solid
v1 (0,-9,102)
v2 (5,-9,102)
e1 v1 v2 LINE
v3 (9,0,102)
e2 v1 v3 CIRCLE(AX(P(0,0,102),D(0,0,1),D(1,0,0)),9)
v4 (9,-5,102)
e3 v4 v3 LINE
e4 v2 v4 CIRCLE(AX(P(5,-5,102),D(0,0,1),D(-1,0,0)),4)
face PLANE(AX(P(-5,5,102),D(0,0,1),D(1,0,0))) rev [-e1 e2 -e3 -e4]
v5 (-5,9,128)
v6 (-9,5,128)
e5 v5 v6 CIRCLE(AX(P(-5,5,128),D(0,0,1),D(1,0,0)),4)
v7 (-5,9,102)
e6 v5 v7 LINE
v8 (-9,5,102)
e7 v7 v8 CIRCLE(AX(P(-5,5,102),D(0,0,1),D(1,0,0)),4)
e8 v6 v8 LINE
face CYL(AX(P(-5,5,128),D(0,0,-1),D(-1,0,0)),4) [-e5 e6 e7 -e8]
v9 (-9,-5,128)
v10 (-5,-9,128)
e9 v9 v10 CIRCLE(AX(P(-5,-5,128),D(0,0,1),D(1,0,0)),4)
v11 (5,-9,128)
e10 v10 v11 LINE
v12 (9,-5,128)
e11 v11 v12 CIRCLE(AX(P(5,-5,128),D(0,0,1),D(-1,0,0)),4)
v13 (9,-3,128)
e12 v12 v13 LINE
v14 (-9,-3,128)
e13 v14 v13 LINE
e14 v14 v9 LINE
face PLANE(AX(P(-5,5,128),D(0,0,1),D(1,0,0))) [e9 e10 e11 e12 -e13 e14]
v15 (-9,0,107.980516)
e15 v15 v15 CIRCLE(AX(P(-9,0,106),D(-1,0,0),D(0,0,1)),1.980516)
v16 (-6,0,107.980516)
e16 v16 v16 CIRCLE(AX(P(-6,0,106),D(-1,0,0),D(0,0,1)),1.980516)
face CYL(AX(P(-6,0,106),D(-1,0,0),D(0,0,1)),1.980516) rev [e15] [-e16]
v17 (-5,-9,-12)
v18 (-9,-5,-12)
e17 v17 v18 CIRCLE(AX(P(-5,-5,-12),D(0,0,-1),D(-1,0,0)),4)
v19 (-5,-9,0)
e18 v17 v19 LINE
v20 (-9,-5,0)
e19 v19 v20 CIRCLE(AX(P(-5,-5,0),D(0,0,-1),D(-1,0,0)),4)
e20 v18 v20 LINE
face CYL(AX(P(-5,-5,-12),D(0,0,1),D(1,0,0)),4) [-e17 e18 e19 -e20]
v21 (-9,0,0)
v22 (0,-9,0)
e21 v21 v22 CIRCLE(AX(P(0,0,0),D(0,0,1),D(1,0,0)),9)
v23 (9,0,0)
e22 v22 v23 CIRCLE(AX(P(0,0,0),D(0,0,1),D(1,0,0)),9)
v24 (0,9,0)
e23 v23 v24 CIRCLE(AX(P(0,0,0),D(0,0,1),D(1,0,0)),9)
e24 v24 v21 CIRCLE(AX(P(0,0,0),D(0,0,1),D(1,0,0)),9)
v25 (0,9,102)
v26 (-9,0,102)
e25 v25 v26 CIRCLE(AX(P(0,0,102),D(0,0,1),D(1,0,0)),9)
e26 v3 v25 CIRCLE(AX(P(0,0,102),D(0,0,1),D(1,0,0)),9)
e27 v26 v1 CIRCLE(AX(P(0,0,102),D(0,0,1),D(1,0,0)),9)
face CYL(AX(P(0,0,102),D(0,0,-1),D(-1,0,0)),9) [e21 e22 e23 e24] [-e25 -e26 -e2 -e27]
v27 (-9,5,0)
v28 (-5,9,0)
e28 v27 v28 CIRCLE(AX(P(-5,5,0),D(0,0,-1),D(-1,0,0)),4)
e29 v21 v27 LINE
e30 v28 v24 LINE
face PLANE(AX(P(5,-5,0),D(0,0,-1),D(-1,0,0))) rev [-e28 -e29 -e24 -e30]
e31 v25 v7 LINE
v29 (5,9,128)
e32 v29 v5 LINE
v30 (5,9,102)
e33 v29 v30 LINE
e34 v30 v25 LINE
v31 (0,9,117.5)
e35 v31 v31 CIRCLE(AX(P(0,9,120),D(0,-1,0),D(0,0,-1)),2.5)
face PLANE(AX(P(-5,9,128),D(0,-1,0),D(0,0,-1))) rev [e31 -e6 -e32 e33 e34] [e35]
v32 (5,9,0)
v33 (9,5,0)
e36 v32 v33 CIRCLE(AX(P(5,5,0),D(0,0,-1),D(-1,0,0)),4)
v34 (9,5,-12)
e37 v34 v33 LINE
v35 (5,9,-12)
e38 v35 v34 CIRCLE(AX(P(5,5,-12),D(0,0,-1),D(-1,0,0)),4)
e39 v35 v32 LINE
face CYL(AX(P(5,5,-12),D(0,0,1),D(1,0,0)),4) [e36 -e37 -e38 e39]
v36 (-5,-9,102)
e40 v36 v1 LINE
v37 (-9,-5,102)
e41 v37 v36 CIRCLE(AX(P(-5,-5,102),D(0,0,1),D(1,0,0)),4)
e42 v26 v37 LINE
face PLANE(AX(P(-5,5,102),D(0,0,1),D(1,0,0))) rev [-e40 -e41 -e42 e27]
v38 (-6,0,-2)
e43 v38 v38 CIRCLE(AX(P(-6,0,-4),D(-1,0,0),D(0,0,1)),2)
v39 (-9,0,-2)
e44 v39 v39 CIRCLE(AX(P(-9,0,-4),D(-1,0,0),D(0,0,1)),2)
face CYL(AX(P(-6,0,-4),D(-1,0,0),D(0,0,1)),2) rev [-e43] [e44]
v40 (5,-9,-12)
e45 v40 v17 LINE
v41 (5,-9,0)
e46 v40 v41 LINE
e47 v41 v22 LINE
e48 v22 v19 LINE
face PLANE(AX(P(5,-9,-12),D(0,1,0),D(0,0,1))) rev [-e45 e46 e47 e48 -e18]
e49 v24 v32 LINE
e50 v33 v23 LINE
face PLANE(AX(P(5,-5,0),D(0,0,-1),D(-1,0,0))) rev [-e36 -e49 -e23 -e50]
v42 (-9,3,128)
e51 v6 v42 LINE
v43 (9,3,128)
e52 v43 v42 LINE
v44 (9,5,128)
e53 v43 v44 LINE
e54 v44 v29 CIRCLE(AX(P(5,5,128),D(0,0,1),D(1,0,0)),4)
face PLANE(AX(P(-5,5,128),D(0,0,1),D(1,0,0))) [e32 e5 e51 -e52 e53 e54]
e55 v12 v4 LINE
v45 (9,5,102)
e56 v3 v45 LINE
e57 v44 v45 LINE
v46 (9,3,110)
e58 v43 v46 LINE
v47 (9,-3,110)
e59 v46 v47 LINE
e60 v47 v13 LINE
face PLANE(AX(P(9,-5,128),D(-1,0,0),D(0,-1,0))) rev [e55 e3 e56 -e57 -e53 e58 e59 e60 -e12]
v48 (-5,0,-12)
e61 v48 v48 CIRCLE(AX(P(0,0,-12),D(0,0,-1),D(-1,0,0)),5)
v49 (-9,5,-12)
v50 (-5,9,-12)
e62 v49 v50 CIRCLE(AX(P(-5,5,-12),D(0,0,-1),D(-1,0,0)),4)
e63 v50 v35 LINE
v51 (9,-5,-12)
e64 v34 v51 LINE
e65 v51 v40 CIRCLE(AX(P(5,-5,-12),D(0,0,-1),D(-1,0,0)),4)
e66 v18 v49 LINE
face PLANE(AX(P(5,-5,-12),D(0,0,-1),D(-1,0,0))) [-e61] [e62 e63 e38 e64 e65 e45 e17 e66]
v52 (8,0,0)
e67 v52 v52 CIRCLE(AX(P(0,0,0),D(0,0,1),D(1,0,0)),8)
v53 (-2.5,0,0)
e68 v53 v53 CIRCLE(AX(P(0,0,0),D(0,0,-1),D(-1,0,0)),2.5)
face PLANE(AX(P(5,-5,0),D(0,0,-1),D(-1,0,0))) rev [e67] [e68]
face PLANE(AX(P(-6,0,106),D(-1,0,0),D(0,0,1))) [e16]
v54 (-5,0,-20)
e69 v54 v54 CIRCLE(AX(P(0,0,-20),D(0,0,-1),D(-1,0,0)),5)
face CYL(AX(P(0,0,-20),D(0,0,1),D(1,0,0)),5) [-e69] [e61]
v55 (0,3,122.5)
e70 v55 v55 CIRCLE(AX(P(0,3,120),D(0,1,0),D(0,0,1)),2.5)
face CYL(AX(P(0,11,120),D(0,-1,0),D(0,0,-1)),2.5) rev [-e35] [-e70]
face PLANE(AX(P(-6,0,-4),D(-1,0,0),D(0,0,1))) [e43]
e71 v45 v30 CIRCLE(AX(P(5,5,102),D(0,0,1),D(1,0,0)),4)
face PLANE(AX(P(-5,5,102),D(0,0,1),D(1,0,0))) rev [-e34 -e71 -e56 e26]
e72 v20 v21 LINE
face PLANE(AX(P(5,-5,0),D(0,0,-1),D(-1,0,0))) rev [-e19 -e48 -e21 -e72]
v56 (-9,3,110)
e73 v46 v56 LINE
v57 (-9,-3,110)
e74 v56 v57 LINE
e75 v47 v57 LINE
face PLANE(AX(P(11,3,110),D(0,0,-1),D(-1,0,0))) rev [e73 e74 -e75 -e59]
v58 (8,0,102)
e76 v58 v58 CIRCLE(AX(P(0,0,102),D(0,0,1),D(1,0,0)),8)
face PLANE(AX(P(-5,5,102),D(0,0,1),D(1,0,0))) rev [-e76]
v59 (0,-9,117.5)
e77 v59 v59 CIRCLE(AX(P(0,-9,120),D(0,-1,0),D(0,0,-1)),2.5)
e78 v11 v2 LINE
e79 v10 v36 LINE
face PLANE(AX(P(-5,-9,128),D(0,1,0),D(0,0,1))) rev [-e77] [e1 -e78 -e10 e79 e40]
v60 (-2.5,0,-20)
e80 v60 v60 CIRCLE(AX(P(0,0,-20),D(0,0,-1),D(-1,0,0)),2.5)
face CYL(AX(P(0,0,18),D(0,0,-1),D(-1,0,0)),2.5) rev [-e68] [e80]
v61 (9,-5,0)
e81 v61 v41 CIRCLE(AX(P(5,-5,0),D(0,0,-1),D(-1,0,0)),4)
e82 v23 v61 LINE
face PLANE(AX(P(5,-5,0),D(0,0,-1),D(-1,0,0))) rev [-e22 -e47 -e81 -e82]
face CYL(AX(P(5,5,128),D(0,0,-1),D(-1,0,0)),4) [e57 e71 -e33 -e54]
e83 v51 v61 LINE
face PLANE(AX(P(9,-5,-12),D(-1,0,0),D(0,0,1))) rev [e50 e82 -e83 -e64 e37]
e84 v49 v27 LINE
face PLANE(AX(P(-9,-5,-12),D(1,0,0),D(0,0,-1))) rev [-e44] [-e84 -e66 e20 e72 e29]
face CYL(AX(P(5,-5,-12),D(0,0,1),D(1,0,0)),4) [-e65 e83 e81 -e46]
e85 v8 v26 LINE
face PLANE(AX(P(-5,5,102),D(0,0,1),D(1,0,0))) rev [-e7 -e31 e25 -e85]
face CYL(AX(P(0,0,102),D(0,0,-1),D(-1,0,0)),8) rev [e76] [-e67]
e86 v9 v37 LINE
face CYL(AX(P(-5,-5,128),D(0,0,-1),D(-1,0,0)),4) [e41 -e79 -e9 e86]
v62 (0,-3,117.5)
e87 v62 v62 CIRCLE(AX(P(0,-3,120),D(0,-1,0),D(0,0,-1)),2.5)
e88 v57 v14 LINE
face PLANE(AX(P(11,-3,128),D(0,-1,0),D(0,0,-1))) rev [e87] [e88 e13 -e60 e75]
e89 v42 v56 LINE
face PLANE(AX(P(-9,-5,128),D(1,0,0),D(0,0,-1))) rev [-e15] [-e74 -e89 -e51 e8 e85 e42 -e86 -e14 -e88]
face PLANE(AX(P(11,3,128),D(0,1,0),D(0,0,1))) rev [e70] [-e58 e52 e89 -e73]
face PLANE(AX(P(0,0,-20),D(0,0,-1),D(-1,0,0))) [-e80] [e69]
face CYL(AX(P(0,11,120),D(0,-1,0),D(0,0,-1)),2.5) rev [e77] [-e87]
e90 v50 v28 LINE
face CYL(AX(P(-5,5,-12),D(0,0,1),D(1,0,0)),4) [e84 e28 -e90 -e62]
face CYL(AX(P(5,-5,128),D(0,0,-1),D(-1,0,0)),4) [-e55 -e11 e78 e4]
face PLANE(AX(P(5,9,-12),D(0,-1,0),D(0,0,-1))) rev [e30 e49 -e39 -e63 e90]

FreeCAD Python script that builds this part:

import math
import FreeCAD as App
import Part
import Sketcher
from FreeCAD import Vector


def add_polygon(sketch, points):
    """Adds a closed chain of lines whose ends are joined by coincident constraints."""
    first, n = sketch.GeometryCount, len(points)
    for a, b in zip(points, points[1:] + points[:1]):
        sketch.addGeometry(Part.LineSegment(App.Vector(*a, 0), App.Vector(*b, 0)), False)
    for i in range(n):
        sketch.addConstraint(Sketcher.Constraint("Coincident", first + i, 2, first + (i + 1) % n, 1))

doc = App.newDocument("Part")
body = doc.addObject("PartDesign::Body", "Body")

sketch1 = doc.addObject("Sketcher::SketchObject", "Sketch")
body.addObject(sketch1)
sketch1.AttachmentSupport = (doc.XY_Plane, [""])
sketch1.MapMode = "FlatFace"
sketch1.addGeometry([
    Part.Circle(Vector(0, 0, 0), Vector(0, 0, 1), 9),
    Part.Circle(Vector(0, 0, 0), Vector(0, 0, 1), 8),
], False)
sketch1.addConstraint([
    Sketcher.Constraint("Coincident", 0, 3, -1, 1),
    Sketcher.Constraint("Coincident", 1, 3, -1, 1),
    Sketcher.Constraint("Diameter", 0, 18.0),
    Sketcher.Constraint("Diameter", 1, 16.0),
])
pad1 = doc.addObject("PartDesign::Pad", "Pad")
body.addObject(pad1)
pad1.Profile = sketch1
pad1.Length = 102

sketch2 = doc.addObject("Sketcher::SketchObject", "Sketch001")
body.addObject(sketch2)
sketch2.AttachmentSupport = (doc.XY_Plane, [""])
sketch2.MapMode = "FlatFace"
sketch2.AttachmentOffset = App.Placement(Vector(0, 0, 102), App.Rotation())
sketch2.addGeometry([
    Part.LineSegment(Vector(-5, -9, 0), Vector(5, -9, 0)),
    Part.ArcOfCircle(Part.Circle(Vector(5, -5, 0), Vector(0, 0, 1), 4), math.radians(-90), math.radians(0)),
    Part.LineSegment(Vector(9, -5, 0), Vector(9, 5, 0)),
    Part.ArcOfCircle(Part.Circle(Vector(5, 5, 0), Vector(0, 0, 1), 4), math.radians(0), math.radians(90)),
    Part.LineSegment(Vector(5, 9, 0), Vector(-5, 9, 0)),
    Part.ArcOfCircle(Part.Circle(Vector(-5, 5, 0), Vector(0, 0, 1), 4), math.radians(90), math.radians(180)),
    Part.LineSegment(Vector(-9, 5, 0), Vector(-9, -5, 0)),
    Part.ArcOfCircle(Part.Circle(Vector(-5, -5, 0), Vector(0, 0, 1), 4), math.radians(180), math.radians(270)),
], False)
sketch2.addConstraint([
    Sketcher.Constraint("Tangent", 0, 2, 1, 1),
    Sketcher.Constraint("Tangent", 1, 2, 2, 1),
    Sketcher.Constraint("Tangent", 2, 2, 3, 1),
    Sketcher.Constraint("Tangent", 3, 2, 4, 1),
    Sketcher.Constraint("Tangent", 4, 2, 5, 1),
    Sketcher.Constraint("Tangent", 5, 2, 6, 1),
    Sketcher.Constraint("Tangent", 6, 2, 7, 1),
    Sketcher.Constraint("Tangent", 7, 2, 0, 1),
    Sketcher.Constraint("Horizontal", 0),
    Sketcher.Constraint("Vertical", 2),
    Sketcher.Constraint("Horizontal", 4),
    Sketcher.Constraint("Vertical", 6),
    Sketcher.Constraint("Equal", 1, 3),
    Sketcher.Constraint("Equal", 3, 5),
    Sketcher.Constraint("Equal", 5, 7),
    Sketcher.Constraint("Symmetric", 1, 3, 5, 3, -1, 1),
    Sketcher.Constraint("Equal", 4, 2),
    Sketcher.Constraint("Radius", 1, 4.0),
    Sketcher.Constraint("DistanceX", 0, 1, 0, 2, 10.0),
])
pad2 = doc.addObject("PartDesign::Pad", "Pad001")
body.addObject(pad2)
pad2.Profile = sketch2
pad2.Length = 26

sketch3 = doc.addObject("Sketcher::SketchObject", "Sketch002")
body.addObject(sketch3)
sketch3.AttachmentSupport = (doc.XY_Plane, [""])
sketch3.MapMode = "FlatFace"
sketch3.AttachmentOffset = App.Placement(Vector(0, 0, -12), App.Rotation())
sketch3.addGeometry([
    Part.LineSegment(Vector(5, -9, 0), Vector(-5, -9, 0)),
    Part.ArcOfCircle(Part.Circle(Vector(-5, -5, 0), Vector(0, 0, 1), 4), math.radians(180), math.radians(270)),
    Part.LineSegment(Vector(-9, -5, 0), Vector(-9, 5, 0)),
    Part.ArcOfCircle(Part.Circle(Vector(-5, 5, 0), Vector(0, 0, 1), 4), math.radians(90), math.radians(180)),
    Part.LineSegment(Vector(-5, 9, 0), Vector(5, 9, 0)),
    Part.ArcOfCircle(Part.Circle(Vector(5, 5, 0), Vector(0, 0, 1), 4), math.radians(0), math.radians(90)),
    Part.LineSegment(Vector(9, 5, 0), Vector(9, -5, 0)),
    Part.ArcOfCircle(Part.Circle(Vector(5, -5, 0), Vector(0, 0, 1), 4), math.radians(-90), math.radians(0)),
], False)
sketch3.addConstraint([
    Sketcher.Constraint("Tangent", 0, 2, 1, 2),
    Sketcher.Constraint("Tangent", 1, 1, 2, 1),
    Sketcher.Constraint("Tangent", 2, 2, 3, 2),
    Sketcher.Constraint("Tangent", 3, 1, 4, 1),
    Sketcher.Constraint("Tangent", 4, 2, 5, 2),
    Sketcher.Constraint("Tangent", 5, 1, 6, 1),
    Sketcher.Constraint("Tangent", 6, 2, 7, 2),
    Sketcher.Constraint("Tangent", 7, 1, 0, 1),
    Sketcher.Constraint("Horizontal", 0),
    Sketcher.Constraint("Vertical", 2),
    Sketcher.Constraint("Horizontal", 4),
    Sketcher.Constraint("Vertical", 6),
    Sketcher.Constraint("Equal", 1, 3),
    Sketcher.Constraint("Equal", 3, 5),
    Sketcher.Constraint("Equal", 5, 7),
    Sketcher.Constraint("Symmetric", 1, 3, 5, 3, -1, 1),
    Sketcher.Constraint("Equal", 4, 2),
    Sketcher.Constraint("Radius", 1, 4.0),
    Sketcher.Constraint("DistanceX", 0, 2, 0, 1, 10.0),
])
pad3 = doc.addObject("PartDesign::Pad", "Pad002")
body.addObject(pad3)
pad3.Profile = sketch3
pad3.Length = 12

sketch4 = doc.addObject("Sketcher::SketchObject", "Sketch003")
body.addObject(sketch4)
sketch4.AttachmentSupport = (doc.XY_Plane, [""])
sketch4.MapMode = "FlatFace"
sketch4.AttachmentOffset = App.Placement(Vector(0, 0, -12), App.Rotation())
sketch4.addGeometry(Part.Circle(Vector(0, 0, 0), Vector(0, 0, 1), 5), False)
sketch4.addConstraint([
    Sketcher.Constraint("Coincident", 0, 3, -1, 1),
    Sketcher.Constraint("Diameter", 0, 10.0),
])
pad4 = doc.addObject("PartDesign::Pad", "Pad003")
body.addObject(pad4)
pad4.Profile = sketch4
pad4.Length = 8
pad4.Reversed = True

sketch5 = doc.addObject("Sketcher::SketchObject", "Sketch004")
body.addObject(sketch5)
sketch5.AttachmentSupport = (doc.XY_Plane, [""])
sketch5.MapMode = "FlatFace"
sketch5.AttachmentOffset = App.Placement(Vector(0, 0, -20), App.Rotation())
sketch5.addGeometry(Part.Circle(Vector(0, 0, 0), Vector(0, 0, 1), 2.5), False)
sketch5.addConstraint([
    Sketcher.Constraint("Coincident", 0, 3, -1, 1),
    Sketcher.Constraint("Diameter", 0, 5.0),
])
pocket1 = doc.addObject("PartDesign::Pocket", "Pocket")
body.addObject(pocket1)
pocket1.Profile = sketch5
pocket1.Length = 38
pocket1.Reversed = True

sketch6 = doc.addObject("Sketcher::SketchObject", "Sketch005")
body.addObject(sketch6)
sketch6.AttachmentSupport = (doc.YZ_Plane, [""])
sketch6.MapMode = "FlatFace"
sketch6.AttachmentOffset = App.Placement(Vector(0, 0, -9), App.Rotation())
sketch6.addGeometry([
    Part.Circle(Vector(0, -4, 0), Vector(0, 0, 1), 2),
    Part.Circle(Vector(0, 106, 0), Vector(0, 0, 1), 2),
], False)
sketch6.addConstraint([
    Sketcher.Constraint("PointOnObject", 0, 3, -2),
    Sketcher.Constraint("PointOnObject", 1, 3, -2),
    Sketcher.Constraint("Diameter", 0, 4.0),
    Sketcher.Constraint("DistanceY", 0, 3, -1, 1, 4.0),
    Sketcher.Constraint("DistanceY", -1, 1, 1, 3, 106.0),
    Sketcher.Constraint("Diameter", 1, 3.961033),
])
pocket2 = doc.addObject("PartDesign::Pocket", "Pocket001")
body.addObject(pocket2)
pocket2.Profile = sketch6
pocket2.Length = 3
pocket2.Reversed = True

sketch7 = doc.addObject("Sketcher::SketchObject", "Sketch006")
body.addObject(sketch7)
sketch7.AttachmentSupport = (doc.YZ_Plane, [""])
sketch7.MapMode = "FlatFace"
sketch7.AttachmentOffset = App.Placement(Vector(0, 0, -9), App.Rotation())
add_polygon(sketch7, [(3, 110), (-3, 110), (-3, 128), (3, 128)])
sketch7.addConstraint([
    Sketcher.Constraint("Horizontal", 0),
    Sketcher.Constraint("Vertical", 1),
    Sketcher.Constraint("Horizontal", 2),
    Sketcher.Constraint("Vertical", 3),
    Sketcher.Constraint("DistanceX", 0, 2, 0, 1, 6.0),
    Sketcher.Constraint("DistanceY", 1, 1, 1, 2, 18.0),
    Sketcher.Constraint("DistanceX", 0, 2, -1, 1, 3.0),
    Sketcher.Constraint("DistanceY", -1, 1, 0, 2, 110.0),
])
pocket3 = doc.addObject("PartDesign::Pocket", "Pocket002")
body.addObject(pocket3)
pocket3.Profile = sketch7
pocket3.Length = 20
pocket3.Reversed = True

sketch8 = doc.addObject("Sketcher::SketchObject", "Sketch007")
body.addObject(sketch8)
sketch8.AttachmentSupport = (doc.XZ_Plane, [""])
sketch8.MapMode = "FlatFace"
sketch8.AttachmentOffset = App.Placement(Vector(0, 0, 9), App.Rotation())
sketch8.addGeometry(Part.Circle(Vector(0, 120, 0), Vector(0, 0, 1), 2.5), False)
sketch8.addConstraint([
    Sketcher.Constraint("PointOnObject", 0, 3, -2),
    Sketcher.Constraint("Diameter", 0, 5.0),
    Sketcher.Constraint("DistanceY", -1, 1, 0, 3, 120.0),
])
pocket4 = doc.addObject("PartDesign::Pocket", "Pocket003")
body.addObject(pocket4)
pocket4.Profile = sketch8
pocket4.Length = 20

doc.recompute()
